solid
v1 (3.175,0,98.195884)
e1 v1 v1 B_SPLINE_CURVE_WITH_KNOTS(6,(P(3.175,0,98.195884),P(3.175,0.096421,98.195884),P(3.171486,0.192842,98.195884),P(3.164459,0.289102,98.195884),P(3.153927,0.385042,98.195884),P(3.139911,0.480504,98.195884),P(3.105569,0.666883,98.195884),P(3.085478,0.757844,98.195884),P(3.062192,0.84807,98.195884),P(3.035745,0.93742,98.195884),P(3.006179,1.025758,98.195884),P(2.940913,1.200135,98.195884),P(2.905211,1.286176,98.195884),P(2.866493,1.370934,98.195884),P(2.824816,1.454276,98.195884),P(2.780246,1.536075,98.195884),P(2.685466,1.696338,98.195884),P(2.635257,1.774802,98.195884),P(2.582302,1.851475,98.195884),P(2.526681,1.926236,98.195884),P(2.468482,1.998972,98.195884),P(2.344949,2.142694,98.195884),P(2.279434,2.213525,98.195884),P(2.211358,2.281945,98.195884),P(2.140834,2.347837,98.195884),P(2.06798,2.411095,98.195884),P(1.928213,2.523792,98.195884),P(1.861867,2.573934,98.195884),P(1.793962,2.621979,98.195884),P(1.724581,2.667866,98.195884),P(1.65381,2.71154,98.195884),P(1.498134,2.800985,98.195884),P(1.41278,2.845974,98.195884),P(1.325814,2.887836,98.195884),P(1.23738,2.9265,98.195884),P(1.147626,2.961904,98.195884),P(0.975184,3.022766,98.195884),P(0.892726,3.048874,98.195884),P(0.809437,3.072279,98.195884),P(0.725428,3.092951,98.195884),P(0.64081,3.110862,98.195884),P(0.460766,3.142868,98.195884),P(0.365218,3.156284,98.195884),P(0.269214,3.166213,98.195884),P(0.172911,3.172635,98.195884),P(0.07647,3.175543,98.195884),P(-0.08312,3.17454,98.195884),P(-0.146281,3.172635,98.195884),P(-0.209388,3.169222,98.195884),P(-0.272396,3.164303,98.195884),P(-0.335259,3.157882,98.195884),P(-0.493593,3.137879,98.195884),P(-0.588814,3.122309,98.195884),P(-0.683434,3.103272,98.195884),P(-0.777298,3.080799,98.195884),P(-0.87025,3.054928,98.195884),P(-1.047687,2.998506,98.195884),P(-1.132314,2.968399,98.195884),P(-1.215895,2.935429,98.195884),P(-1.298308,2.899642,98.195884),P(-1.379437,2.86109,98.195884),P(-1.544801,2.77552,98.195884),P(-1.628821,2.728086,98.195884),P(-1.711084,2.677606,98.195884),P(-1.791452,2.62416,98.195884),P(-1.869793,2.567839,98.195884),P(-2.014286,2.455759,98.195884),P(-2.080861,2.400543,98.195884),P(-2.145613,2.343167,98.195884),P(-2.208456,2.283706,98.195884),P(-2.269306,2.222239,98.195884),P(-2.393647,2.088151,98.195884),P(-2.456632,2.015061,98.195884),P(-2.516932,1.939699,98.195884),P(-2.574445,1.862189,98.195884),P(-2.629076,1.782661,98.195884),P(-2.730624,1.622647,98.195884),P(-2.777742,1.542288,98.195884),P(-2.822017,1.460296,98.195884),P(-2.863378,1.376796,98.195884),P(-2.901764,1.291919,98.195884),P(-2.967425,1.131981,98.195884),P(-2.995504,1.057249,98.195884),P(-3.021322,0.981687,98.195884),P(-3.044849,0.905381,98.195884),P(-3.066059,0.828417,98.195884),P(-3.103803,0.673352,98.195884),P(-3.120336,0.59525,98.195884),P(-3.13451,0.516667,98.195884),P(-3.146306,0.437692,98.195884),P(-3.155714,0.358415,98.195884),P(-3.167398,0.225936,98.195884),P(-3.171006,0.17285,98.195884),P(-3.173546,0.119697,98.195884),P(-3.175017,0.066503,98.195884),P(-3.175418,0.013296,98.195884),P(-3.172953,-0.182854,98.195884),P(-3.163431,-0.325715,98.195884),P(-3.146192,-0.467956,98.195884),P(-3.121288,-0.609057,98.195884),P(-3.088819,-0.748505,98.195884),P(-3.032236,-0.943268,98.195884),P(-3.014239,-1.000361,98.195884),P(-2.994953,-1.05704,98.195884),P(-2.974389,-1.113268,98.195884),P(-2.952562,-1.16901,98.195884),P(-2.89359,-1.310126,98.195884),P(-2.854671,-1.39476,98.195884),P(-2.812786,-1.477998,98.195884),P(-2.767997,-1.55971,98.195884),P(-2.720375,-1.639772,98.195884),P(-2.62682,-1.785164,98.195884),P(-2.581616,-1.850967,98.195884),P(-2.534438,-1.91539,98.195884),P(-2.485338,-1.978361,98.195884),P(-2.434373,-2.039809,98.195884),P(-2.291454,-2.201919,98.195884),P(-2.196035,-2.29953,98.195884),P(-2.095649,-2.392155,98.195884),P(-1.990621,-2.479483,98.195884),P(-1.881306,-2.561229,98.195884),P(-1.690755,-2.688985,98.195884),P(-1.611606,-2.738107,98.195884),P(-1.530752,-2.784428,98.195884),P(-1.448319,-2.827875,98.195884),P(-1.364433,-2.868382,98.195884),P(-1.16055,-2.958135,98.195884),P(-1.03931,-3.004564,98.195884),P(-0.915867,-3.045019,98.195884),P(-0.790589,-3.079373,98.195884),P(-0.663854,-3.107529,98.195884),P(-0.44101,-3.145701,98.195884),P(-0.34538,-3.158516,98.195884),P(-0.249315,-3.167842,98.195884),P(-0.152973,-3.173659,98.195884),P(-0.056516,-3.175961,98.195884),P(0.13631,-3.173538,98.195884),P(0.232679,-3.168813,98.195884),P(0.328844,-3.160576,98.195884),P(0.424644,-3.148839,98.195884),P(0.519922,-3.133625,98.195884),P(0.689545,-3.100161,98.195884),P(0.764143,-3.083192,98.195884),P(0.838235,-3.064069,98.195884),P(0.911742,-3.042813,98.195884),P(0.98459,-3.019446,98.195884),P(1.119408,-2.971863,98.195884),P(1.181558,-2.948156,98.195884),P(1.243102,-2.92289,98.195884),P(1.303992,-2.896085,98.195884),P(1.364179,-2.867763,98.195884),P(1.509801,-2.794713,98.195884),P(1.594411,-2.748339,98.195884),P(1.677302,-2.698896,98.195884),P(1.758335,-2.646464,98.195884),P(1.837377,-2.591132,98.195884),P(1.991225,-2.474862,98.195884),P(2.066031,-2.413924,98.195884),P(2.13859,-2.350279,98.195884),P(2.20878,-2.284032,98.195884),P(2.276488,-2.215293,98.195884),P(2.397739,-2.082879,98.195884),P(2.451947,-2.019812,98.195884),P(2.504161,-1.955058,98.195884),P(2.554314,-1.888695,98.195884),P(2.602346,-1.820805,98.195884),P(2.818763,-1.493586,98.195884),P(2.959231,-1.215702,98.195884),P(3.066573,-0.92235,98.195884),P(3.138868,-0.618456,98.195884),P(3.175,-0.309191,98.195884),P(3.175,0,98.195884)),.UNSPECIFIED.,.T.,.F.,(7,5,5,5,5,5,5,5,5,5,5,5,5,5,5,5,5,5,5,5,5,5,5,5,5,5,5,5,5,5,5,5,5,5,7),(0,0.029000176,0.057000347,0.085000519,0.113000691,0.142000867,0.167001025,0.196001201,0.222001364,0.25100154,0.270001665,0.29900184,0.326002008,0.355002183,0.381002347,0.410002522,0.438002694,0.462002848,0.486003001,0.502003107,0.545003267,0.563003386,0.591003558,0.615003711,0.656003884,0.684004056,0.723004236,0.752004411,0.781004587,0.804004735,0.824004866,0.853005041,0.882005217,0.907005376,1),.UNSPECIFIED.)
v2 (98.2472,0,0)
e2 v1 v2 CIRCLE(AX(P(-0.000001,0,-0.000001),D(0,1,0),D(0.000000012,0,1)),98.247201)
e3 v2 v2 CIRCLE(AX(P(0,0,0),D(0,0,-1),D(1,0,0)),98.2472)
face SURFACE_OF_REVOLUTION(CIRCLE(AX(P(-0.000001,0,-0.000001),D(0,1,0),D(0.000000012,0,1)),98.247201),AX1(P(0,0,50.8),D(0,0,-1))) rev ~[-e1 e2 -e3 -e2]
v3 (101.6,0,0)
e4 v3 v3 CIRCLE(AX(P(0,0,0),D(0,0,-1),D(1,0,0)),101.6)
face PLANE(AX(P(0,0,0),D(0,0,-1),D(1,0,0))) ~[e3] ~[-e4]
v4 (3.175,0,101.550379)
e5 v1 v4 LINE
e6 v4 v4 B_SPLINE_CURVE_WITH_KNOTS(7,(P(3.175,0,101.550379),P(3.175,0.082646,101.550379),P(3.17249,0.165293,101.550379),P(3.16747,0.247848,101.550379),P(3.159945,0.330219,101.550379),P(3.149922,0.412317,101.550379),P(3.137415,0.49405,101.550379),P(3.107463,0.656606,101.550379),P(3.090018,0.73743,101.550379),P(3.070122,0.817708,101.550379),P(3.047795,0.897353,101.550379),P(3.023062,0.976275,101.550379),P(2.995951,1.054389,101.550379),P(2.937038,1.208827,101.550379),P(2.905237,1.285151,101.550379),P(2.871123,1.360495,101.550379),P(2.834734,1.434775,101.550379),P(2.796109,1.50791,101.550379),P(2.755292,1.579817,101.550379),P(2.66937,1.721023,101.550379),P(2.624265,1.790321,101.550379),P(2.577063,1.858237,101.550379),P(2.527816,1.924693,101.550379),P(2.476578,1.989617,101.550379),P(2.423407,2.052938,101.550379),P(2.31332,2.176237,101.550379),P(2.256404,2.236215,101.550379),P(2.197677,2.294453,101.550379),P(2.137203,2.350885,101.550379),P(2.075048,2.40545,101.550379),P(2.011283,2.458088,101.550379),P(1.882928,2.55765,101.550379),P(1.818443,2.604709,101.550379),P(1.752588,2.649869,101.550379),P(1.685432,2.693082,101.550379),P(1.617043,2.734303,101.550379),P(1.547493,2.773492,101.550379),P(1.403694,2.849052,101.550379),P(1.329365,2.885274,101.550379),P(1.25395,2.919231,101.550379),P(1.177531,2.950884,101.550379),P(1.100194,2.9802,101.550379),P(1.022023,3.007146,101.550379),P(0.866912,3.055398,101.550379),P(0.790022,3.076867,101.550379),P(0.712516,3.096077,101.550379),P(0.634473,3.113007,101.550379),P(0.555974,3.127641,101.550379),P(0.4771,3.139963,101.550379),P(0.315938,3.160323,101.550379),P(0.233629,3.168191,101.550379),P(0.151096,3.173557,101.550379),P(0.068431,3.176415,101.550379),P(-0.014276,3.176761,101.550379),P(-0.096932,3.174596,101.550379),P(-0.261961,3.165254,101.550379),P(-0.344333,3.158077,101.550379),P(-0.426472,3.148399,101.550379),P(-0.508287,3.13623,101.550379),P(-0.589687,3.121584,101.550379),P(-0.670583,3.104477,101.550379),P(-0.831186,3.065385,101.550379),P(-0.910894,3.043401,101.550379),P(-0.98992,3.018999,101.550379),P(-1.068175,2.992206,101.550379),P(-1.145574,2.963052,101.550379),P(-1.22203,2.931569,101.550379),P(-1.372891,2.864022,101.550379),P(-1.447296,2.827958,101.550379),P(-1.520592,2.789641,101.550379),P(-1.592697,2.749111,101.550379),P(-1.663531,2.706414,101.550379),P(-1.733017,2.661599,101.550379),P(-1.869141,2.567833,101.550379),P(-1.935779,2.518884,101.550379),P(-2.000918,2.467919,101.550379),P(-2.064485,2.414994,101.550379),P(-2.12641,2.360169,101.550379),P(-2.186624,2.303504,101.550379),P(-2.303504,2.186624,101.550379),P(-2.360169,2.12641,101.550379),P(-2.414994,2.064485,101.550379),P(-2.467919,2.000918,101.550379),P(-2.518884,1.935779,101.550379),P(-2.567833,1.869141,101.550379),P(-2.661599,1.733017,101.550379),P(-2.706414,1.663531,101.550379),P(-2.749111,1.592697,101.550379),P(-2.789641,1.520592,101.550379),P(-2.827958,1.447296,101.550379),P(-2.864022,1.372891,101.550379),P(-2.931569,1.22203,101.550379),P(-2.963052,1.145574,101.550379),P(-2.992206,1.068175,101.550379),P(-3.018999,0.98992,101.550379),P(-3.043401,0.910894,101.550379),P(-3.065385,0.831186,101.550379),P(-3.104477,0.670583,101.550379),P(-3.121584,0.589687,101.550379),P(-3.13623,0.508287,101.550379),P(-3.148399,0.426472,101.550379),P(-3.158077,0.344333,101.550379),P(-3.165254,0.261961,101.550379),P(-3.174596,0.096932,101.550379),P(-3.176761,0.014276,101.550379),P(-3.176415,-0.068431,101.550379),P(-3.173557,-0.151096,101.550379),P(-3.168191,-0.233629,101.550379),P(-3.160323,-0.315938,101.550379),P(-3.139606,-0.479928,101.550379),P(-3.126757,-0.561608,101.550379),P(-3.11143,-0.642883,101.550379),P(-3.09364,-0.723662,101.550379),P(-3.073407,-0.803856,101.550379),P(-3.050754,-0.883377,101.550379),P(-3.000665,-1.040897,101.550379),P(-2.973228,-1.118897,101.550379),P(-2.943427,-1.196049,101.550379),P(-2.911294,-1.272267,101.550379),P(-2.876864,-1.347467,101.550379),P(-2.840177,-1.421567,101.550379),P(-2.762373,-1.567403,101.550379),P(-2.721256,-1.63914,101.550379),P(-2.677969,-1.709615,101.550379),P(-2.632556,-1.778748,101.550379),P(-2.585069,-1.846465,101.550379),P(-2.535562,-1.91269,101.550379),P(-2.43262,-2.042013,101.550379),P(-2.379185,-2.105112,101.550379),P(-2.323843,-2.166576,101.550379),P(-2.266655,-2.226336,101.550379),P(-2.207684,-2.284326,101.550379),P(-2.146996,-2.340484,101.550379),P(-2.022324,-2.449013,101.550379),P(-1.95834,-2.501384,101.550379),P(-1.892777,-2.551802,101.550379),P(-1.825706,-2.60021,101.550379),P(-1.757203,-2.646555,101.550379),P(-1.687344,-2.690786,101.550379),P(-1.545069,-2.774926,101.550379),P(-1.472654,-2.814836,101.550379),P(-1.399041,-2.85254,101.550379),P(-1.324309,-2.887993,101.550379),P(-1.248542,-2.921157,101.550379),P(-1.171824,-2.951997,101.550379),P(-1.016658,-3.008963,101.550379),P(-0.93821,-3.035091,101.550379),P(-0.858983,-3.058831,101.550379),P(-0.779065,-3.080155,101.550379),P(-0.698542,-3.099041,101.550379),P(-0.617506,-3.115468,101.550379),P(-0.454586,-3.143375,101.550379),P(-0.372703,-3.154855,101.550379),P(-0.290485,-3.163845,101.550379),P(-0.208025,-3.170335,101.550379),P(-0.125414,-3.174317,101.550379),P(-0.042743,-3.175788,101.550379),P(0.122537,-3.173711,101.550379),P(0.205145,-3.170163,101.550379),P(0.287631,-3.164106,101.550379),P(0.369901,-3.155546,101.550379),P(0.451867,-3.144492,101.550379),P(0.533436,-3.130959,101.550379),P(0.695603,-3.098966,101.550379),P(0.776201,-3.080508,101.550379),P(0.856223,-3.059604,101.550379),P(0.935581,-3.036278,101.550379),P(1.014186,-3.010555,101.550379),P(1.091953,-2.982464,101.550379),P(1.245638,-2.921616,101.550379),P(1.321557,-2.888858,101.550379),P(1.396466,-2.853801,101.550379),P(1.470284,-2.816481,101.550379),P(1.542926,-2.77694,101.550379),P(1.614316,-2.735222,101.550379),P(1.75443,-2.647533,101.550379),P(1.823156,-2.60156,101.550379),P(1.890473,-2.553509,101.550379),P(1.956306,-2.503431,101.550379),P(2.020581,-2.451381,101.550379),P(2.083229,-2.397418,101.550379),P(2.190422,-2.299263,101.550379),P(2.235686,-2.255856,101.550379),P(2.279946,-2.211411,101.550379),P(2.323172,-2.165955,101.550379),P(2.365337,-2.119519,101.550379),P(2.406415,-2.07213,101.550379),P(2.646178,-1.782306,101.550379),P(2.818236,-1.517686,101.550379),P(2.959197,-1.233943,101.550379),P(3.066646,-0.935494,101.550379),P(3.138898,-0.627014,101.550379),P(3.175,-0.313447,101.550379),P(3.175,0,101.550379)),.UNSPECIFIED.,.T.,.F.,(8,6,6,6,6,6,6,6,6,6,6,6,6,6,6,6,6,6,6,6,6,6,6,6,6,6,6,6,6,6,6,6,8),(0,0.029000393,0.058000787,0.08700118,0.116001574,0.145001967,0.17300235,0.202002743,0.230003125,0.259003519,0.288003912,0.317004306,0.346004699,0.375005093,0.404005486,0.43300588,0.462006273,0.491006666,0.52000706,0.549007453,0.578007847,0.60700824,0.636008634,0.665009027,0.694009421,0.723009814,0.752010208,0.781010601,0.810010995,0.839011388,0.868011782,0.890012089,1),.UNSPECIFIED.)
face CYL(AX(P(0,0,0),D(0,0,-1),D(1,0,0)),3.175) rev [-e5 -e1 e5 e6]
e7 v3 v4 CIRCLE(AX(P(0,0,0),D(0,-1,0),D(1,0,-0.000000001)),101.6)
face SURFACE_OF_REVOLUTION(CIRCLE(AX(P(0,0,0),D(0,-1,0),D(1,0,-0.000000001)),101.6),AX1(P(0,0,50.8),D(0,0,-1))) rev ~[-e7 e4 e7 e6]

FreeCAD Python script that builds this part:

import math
import FreeCAD as App
import Part
import Sketcher

V = App.Vector
Q = App.Units.Quantity

doc = App.newDocument("Part")
body = doc.addObject("PartDesign::Body", "Body")

# Sketch on XZ plane
sketch1 = doc.addObject("Sketcher::SketchObject", "Sketch")
body.addObject(sketch1)
sketch1.AttachmentSupport = (doc.XZ_Plane, [""])
sketch1.MapMode = "FlatFace"
sketch1.addGeometry([
    Part.ArcOfCircle(Part.Circle(V(-0.000001, -0.000001, 0), V(0, 0, 1), 98.247201), math.radians(0.000001), math.radians(89.999999)),
    Part.LineSegment(V(98.2472, 0, 0), V(101.6, 0, 0)),
    Part.ArcOfCircle(Part.Circle(V(0, 0, 0), V(0, 0, 1), 101.6), math.radians(0), math.radians(90)),
    Part.LineSegment(V(0, 101.6, 0), V(0, 98.2472, 0)),
], False)
sketch1.addConstraint([
    Sketcher.Constraint("Coincident", 0, 1, 1, 1),
    Sketcher.Constraint("Coincident", 1, 2, 2, 1),
    Sketcher.Constraint("Coincident", 2, 2, 3, 1),
    Sketcher.Constraint("Coincident", 3, 2, 0, 2),
    Sketcher.Constraint("Horizontal", 1),
    Sketcher.Constraint("Vertical", 3),
    Sketcher.Constraint("Coincident", 0, 3, -1, 1),
    Sketcher.Constraint("Coincident", 2, 3, -1, 1),
    Sketcher.Constraint("PointOnObject", 0, 1, -1),
    Sketcher.Constraint("PointOnObject", 2, 2, -2),
    Sketcher.Constraint("Radius", 2, Q("4 in")),
    Sketcher.Constraint("Radius", 0, Q("3.868 in")),
])
revolution = doc.addObject("PartDesign::Revolution", "Revolution")
body.addObject(revolution)
revolution.Profile = sketch1
revolution.ReferenceAxis = (sketch1, ["V_Axis"])
revolution.Angle = 360

# Sketch on XY plane
sketch2 = doc.addObject("Sketcher::SketchObject", "Sketch001")
body.addObject(sketch2)
sketch2.AttachmentSupport = (doc.XY_Plane, [""])
sketch2.MapMode = "FlatFace"
sketch2.addGeometry(Part.Circle(V(0, 0, 0), V(0, 0, 1), 3.175), False)
sketch2.addConstraint([
    Sketcher.Constraint("Coincident", 0, 3, -1, 1),
    Sketcher.Constraint("Diameter", 0, Q("0.25 in")),
])
pocket1 = doc.addObject("PartDesign::Pocket", "Pocket")
body.addObject(pocket1)
pocket1.Profile = sketch2
pocket1.Type = "ThroughAll"
pocket1.Reversed = True

doc.recompute()
